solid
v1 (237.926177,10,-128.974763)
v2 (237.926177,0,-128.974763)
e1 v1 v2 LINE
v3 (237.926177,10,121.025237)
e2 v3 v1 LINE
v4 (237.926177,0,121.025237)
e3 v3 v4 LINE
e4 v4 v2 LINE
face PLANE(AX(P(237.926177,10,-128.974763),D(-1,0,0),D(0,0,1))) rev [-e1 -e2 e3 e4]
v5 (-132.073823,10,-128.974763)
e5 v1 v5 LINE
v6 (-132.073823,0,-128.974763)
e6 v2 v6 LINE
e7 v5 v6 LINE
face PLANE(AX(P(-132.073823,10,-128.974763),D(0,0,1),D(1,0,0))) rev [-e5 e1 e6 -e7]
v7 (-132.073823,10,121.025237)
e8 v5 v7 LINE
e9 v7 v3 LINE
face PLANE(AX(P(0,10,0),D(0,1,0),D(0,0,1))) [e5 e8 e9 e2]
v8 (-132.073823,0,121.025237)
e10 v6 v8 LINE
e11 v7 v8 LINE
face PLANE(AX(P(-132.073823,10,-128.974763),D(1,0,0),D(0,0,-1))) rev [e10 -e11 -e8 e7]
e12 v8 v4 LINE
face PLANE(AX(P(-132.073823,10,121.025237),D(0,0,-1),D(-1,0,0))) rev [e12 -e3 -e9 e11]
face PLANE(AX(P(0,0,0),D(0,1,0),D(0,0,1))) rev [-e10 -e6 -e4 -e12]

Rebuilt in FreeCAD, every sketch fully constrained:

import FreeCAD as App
import Part
import Sketcher

V = App.Vector


def add_polygon(sketch, points):
    """Adds a closed chain of lines whose ends are joined by coincident constraints."""
    first, n = sketch.GeometryCount, len(points)
    for a, b in zip(points, points[1:] + points[:1]):
        sketch.addGeometry(Part.LineSegment(App.Vector(*a, 0), App.Vector(*b, 0)), False)
    for i in range(n):
        sketch.addConstraint(Sketcher.Constraint("Coincident", first + i, 2, first + (i + 1) % n, 1))

doc = App.newDocument("Part")
body = doc.addObject("PartDesign::Body", "Body")

sketch1 = body.newObject("Sketcher::SketchObject", "Sketch")
sketch1.AttachmentSupport = (doc.getObject("XZ_Plane"), [""])
sketch1.MapMode = "FlatFace"
add_polygon(sketch1, [(-132, -129), (-132, 121), (238, 121), (238, -129)])
sketch1.addConstraint([
    Sketcher.Constraint("Vertical", 0),
    Sketcher.Constraint("Horizontal", 1),
    Sketcher.Constraint("Vertical", 2),
    Sketcher.Constraint("Horizontal", 3),
    Sketcher.Constraint("DistanceX", 1, 1, 1, 2, 370.0),
    Sketcher.Constraint("DistanceY", 0, 1, 0, 2, 250.0),
    Sketcher.Constraint("DistanceX", 0, 2, -1, 1, 132.073823),
    Sketcher.Constraint("DistanceY", -1, 1, 0, 2, 121.025237),
])
pad1 = body.newObject("PartDesign::Pad", "Pad")
pad1.Profile = sketch1
pad1.Length = 10
pad1.Reversed = True

doc.recompute()
